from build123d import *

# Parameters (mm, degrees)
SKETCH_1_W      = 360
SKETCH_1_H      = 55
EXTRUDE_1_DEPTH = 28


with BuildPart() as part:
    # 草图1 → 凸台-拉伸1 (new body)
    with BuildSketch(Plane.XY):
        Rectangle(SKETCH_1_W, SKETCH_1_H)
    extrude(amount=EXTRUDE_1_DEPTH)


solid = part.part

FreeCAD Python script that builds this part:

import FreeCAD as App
import Part
import Sketcher


def add_polygon(sketch, points):
    """Adds a closed chain of lines whose ends are joined by coincident constraints."""
    first, n = sketch.GeometryCount, len(points)
    for a, b in zip(points, points[1:] + points[:1]):
        sketch.addGeometry(Part.LineSegment(App.Vector(*a, 0), App.Vector(*b, 0)), False)
    for i in range(n):
        sketch.addConstraint(Sketcher.Constraint("Coincident", first + i, 2, first + (i + 1) % n, 1))

doc = App.newDocument("Part")
params = doc.addObject("Spreadsheet::Sheet", "Params")
for row, (alias, value) in enumerate([
    ("sketch1_width", "360 mm"),
    ("sketch1_height", "55 mm"),
    ("pad1_length", "28 mm"),
], start=1):
    params.set(f"A{row}", alias)
    params.set(f"B{row}", "=" + value)
    params.setAlias(f"B{row}", alias)

body = doc.addObject("PartDesign::Body", "Body")

# Sketch on XY plane
sketch1 = body.newObject("Sketcher::SketchObject", "Sketch")
sketch1.AttachmentSupport = (doc.getObject("XY_Plane"), [""])
sketch1.MapMode = "FlatFace"
add_polygon(sketch1, [(-180, 27.5), (-180, -27.5), (180, -27.5), (180, 27.5)])  # lines 0-3
sketch1.addConstraint(Sketcher.Constraint("Vertical", 0))
sketch1.addConstraint(Sketcher.Constraint("Horizontal", 1))
sketch1.addConstraint(Sketcher.Constraint("Vertical", 2))
sketch1.addConstraint(Sketcher.Constraint("Horizontal", 3))
sketch1.addConstraint(Sketcher.Constraint("Symmetric", 0, 2, 2, 2, -1, 1))
sketch1.addConstraint(Sketcher.Constraint("DistanceX", 1, 1, 1, 2, 360.0))
sketch1.addConstraint(Sketcher.Constraint("DistanceY", 0, 2, 0, 1, 55.0))
sketch1.setExpression("Constraints[9]", "Params.sketch1_width")
sketch1.setExpression("Constraints[10]", "Params.sketch1_height")
pad1 = body.newObject("PartDesign::Pad", "Pad")
pad1.Profile = sketch1
pad1.setExpression("Length", "Params.pad1_length")

doc.recompute()
